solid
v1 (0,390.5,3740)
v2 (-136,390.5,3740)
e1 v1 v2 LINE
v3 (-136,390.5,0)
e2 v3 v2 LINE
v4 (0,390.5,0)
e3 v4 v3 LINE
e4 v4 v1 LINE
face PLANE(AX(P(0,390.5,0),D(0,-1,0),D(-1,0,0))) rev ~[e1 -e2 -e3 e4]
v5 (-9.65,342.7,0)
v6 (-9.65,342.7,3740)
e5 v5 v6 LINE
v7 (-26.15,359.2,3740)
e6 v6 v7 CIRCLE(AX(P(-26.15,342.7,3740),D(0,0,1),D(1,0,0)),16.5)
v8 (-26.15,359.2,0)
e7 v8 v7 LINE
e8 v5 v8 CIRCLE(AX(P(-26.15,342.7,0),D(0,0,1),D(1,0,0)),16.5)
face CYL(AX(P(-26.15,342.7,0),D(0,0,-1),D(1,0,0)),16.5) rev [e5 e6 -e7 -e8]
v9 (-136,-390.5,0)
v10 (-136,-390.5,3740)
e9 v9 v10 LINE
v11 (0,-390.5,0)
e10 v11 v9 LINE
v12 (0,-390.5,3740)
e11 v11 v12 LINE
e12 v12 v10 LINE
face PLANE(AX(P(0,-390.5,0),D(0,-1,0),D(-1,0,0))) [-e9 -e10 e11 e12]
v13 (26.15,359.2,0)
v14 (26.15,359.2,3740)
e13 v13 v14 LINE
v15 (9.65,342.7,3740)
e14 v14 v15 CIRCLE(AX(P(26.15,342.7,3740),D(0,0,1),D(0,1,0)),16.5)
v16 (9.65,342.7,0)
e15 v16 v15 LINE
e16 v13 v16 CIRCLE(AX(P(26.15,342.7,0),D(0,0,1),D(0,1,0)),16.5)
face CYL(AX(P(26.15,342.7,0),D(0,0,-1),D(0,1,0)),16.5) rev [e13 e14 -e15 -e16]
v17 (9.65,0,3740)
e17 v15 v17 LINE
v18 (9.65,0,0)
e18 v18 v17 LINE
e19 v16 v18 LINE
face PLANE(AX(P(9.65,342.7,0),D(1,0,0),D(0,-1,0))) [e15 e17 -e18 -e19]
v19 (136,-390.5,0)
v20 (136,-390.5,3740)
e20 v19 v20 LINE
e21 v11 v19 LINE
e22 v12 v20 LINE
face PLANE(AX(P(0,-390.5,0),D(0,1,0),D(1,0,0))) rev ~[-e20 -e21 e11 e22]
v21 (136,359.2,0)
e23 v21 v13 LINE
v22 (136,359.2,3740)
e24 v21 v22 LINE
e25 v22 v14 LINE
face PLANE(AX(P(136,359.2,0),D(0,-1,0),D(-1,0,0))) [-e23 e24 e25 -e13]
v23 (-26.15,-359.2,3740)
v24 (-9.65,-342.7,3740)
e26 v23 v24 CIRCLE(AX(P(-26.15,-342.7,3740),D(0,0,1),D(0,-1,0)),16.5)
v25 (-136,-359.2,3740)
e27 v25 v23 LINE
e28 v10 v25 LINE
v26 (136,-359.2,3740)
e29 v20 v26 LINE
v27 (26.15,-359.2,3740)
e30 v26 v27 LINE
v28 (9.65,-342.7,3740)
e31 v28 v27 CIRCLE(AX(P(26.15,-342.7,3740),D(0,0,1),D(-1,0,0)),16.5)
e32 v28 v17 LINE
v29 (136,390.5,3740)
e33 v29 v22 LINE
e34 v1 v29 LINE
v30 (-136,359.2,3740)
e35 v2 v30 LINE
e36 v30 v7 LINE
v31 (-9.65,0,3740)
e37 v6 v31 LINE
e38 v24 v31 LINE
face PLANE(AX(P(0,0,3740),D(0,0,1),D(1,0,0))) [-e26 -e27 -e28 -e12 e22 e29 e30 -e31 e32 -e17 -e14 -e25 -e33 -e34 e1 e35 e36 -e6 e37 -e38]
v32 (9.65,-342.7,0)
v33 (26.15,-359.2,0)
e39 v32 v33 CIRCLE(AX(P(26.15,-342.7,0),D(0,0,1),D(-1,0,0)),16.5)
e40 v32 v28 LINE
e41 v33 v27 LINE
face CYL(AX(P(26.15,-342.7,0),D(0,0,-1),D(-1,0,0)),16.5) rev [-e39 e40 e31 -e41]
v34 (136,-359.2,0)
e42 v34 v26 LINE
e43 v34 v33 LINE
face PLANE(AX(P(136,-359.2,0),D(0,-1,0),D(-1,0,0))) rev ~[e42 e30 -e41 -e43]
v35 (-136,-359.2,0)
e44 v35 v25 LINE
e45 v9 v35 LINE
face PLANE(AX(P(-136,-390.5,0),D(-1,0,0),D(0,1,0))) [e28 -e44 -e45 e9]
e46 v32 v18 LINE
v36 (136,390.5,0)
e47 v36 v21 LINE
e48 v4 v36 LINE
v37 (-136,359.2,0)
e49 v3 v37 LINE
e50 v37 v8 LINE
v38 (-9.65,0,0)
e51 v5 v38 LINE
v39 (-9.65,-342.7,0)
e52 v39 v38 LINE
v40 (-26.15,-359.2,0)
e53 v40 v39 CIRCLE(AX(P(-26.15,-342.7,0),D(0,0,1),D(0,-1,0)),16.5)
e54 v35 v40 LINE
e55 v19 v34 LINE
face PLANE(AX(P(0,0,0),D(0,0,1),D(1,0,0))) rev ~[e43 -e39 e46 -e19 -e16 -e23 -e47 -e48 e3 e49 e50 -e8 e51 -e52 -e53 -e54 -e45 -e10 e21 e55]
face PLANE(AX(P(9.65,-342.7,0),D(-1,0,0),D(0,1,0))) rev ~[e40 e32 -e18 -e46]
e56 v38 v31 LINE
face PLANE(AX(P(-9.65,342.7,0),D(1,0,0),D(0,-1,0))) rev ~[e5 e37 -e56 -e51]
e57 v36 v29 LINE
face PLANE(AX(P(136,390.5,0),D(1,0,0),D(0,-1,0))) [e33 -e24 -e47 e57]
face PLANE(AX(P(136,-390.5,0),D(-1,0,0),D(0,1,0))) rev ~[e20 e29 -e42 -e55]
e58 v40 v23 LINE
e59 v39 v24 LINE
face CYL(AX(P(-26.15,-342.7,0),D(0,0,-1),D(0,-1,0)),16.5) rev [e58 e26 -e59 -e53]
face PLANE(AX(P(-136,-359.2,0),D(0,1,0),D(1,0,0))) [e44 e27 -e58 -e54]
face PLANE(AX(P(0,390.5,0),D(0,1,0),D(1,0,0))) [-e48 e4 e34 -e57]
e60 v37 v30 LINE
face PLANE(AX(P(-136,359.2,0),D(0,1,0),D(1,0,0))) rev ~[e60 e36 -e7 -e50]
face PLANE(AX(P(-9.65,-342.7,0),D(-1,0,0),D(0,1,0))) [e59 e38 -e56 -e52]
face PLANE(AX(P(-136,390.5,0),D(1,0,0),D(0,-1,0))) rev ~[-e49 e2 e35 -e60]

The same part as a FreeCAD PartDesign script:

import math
import FreeCAD as App
import Part
import Sketcher

doc = App.newDocument("Part")
body = doc.addObject("PartDesign::Body", "Body")

sketch1 = body.newObject("Sketcher::SketchObject", "Sketch")
sketch1.AttachmentSupport = (doc.getObject("XY_Plane"), [""])
sketch1.MapMode = "FlatFace"
sketch1.addGeometry(Part.LineSegment(App.Vector(-136, -359.2, 0), App.Vector(-136, -390.5, 0)), False)
sketch1.addGeometry(Part.LineSegment(App.Vector(-136, -390.5, 0), App.Vector(136, -390.5, 0)), False)
sketch1.addGeometry(Part.LineSegment(App.Vector(136, -390.5, 0), App.Vector(136, -359.2, 0)), False)
sketch1.addGeometry(Part.LineSegment(App.Vector(136, -359.2, 0), App.Vector(26.15, -359.2, 0)), False)
sketch1.addGeometry(Part.ArcOfCircle(Part.Circle(App.Vector(26.15, -342.7, 0), App.Vector(0, 0, 1), 16.5), math.radians(180), math.radians(270)), False)
sketch1.addGeometry(Part.LineSegment(App.Vector(9.65, -342.7, 0), App.Vector(9.65, 342.7, 0)), False)
sketch1.addGeometry(Part.ArcOfCircle(Part.Circle(App.Vector(26.15, 342.7, 0), App.Vector(0, 0, 1), 16.5), math.radians(90), math.radians(180)), False)
sketch1.addGeometry(Part.LineSegment(App.Vector(26.15, 359.2, 0), App.Vector(136, 359.2, 0)), False)
sketch1.addGeometry(Part.LineSegment(App.Vector(136, 359.2, 0), App.Vector(136, 390.5, 0)), False)
sketch1.addGeometry(Part.LineSegment(App.Vector(136, 390.5, 0), App.Vector(-136, 390.5, 0)), False)
sketch1.addGeometry(Part.LineSegment(App.Vector(-136, 390.5, 0), App.Vector(-136, 359.2, 0)), False)
sketch1.addGeometry(Part.LineSegment(App.Vector(-136, 359.2, 0), App.Vector(-26.15, 359.2, 0)), False)
sketch1.addGeometry(Part.ArcOfCircle(Part.Circle(App.Vector(-26.15, 342.7, 0), App.Vector(0, 0, 1), 16.5), math.radians(0), math.radians(90)), False)
sketch1.addGeometry(Part.LineSegment(App.Vector(-9.65, 342.7, 0), App.Vector(-9.65, -342.7, 0)), False)
sketch1.addGeometry(Part.ArcOfCircle(Part.Circle(App.Vector(-26.15, -342.7, 0), App.Vector(0, 0, 1), 16.5), math.radians(-90), math.radians(0)), False)
sketch1.addGeometry(Part.LineSegment(App.Vector(-26.15, -359.2, 0), App.Vector(-136, -359.2, 0)), False)
sketch1.addConstraint(Sketcher.Constraint("Coincident", 0, 2, 1, 1))
sketch1.addConstraint(Sketcher.Constraint("Coincident", 1, 2, 2, 1))
sketch1.addConstraint(Sketcher.Constraint("Coincident", 2, 2, 3, 1))
sketch1.addConstraint(Sketcher.Constraint("Tangent", 3, 2, 4, 2))
sketch1.addConstraint(Sketcher.Constraint("Tangent", 4, 1, 5, 1))
sketch1.addConstraint(Sketcher.Constraint("Tangent", 5, 2, 6, 2))
sketch1.addConstraint(Sketcher.Constraint("Tangent", 6, 1, 7, 1))
sketch1.addConstraint(Sketcher.Constraint("Coincident", 7, 2, 8, 1))
sketch1.addConstraint(Sketcher.Constraint("Coincident", 8, 2, 9, 1))
sketch1.addConstraint(Sketcher.Constraint("Coincident", 9, 2, 10, 1))
sketch1.addConstraint(Sketcher.Constraint("Coincident", 10, 2, 11, 1))
sketch1.addConstraint(Sketcher.Constraint("Tangent", 11, 2, 12, 2))
sketch1.addConstraint(Sketcher.Constraint("Tangent", 12, 1, 13, 1))
sketch1.addConstraint(Sketcher.Constraint("Tangent", 13, 2, 14, 2))
sketch1.addConstraint(Sketcher.Constraint("Tangent", 14, 1, 15, 1))
sketch1.addConstraint(Sketcher.Constraint("Coincident", 15, 2, 0, 1))
sketch1.addConstraint(Sketcher.Constraint("Vertical", 0))
sketch1.addConstraint(Sketcher.Constraint("Horizontal", 1))
sketch1.addConstraint(Sketcher.Constraint("Vertical", 2))
sketch1.addConstraint(Sketcher.Constraint("Horizontal", 3))
sketch1.addConstraint(Sketcher.Constraint("Vertical", 5))
sketch1.addConstraint(Sketcher.Constraint("Horizontal", 7))
sketch1.addConstraint(Sketcher.Constraint("Vertical", 8))
sketch1.addConstraint(Sketcher.Constraint("Horizontal", 9))
sketch1.addConstraint(Sketcher.Constraint("Vertical", 10))
sketch1.addConstraint(Sketcher.Constraint("Horizontal", 11))
sketch1.addConstraint(Sketcher.Constraint("Vertical", 13))
sketch1.addConstraint(Sketcher.Constraint("Horizontal", 15))
sketch1.addConstraint(Sketcher.Constraint("Equal", 4, 6))
sketch1.addConstraint(Sketcher.Constraint("Equal", 6, 12))
sketch1.addConstraint(Sketcher.Constraint("Equal", 12, 14))
sketch1.addConstraint(Sketcher.Constraint("Symmetric", 4, 3, 12, 3, -1, 1))
sketch1.addConstraint(Sketcher.Constraint("Symmetric", 0, 2, 8, 2, -1, 1))
sketch1.addConstraint(Sketcher.Constraint("Symmetric", 7, 2, 10, 2, -2))
sketch1.addConstraint(Sketcher.Constraint("Symmetric", 2, 2, 15, 2, -2))
sketch1.addConstraint(Sketcher.Constraint("Radius", 4, 16.5))
sketch1.addConstraint(Sketcher.Constraint("DistanceY", 0, 2, 0, 1, 31.3))
sketch1.addConstraint(Sketcher.Constraint("DistanceX", 0, 2, -1, 1, 136.0))
sketch1.addConstraint(Sketcher.Constraint("DistanceY", 0, 2, -1, 1, 390.5))
sketch1.addConstraint(Sketcher.Constraint("DistanceX", -1, 1, 4, 1, 9.65))
pad1 = body.newObject("PartDesign::Pad", "Pad")
pad1.Profile = sketch1
pad1.Length = 3740

doc.recompute()
